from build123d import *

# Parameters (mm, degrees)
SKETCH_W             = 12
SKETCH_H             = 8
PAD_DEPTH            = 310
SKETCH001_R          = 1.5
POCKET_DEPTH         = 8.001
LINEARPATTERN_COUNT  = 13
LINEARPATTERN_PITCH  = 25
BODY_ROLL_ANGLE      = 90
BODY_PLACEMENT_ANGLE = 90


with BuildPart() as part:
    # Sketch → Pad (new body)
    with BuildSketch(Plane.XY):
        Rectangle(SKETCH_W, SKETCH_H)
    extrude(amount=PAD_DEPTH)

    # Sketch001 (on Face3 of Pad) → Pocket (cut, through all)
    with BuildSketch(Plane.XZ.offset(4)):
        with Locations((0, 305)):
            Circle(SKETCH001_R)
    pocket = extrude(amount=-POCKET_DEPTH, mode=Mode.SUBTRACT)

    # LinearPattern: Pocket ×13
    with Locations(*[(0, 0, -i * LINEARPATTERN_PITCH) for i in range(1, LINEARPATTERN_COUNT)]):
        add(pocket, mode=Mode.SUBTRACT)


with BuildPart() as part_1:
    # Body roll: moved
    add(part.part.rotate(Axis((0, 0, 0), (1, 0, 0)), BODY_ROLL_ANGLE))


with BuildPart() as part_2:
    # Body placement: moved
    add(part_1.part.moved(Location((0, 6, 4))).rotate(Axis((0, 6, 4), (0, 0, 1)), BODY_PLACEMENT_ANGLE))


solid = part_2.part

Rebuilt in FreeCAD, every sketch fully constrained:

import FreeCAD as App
import Part
import Sketcher

V = App.Vector
Q = App.Units.Quantity


def add_polygon(sketch, points):
    """Adds a closed chain of lines whose ends are joined by coincident constraints."""
    first, n = sketch.GeometryCount, len(points)
    for a, b in zip(points, points[1:] + points[:1]):
        sketch.addGeometry(Part.LineSegment(App.Vector(*a, 0), App.Vector(*b, 0)), False)
    for i in range(n):
        sketch.addConstraint(Sketcher.Constraint("Coincident", first + i, 2, first + (i + 1) % n, 1))

doc = App.newDocument("Part")
body = doc.addObject("PartDesign::Body", "Body")

sketch1 = body.newObject("Sketcher::SketchObject", "Sketch")
sketch1.AttachmentSupport = (doc.getObject("XY_Plane"), [""])
sketch1.MapMode = "FlatFace"
add_polygon(sketch1, [(-6, 4), (-6, -4), (6, -4), (6, 4)])
sketch1.addConstraint([
    Sketcher.Constraint("Vertical", 0),
    Sketcher.Constraint("Horizontal", 1),
    Sketcher.Constraint("Vertical", 2),
    Sketcher.Constraint("Horizontal", 3),
    Sketcher.Constraint("Symmetric", 0, 2, 2, 2, -1, 1),
    Sketcher.Constraint("DistanceX", 1, 1, 1, 2, Q("12 mm")),
    Sketcher.Constraint("DistanceY", 0, 2, 0, 1, Q("8 mm")),
])
pad1 = body.newObject("PartDesign::Pad", "Pad")
pad1.Profile = sketch1
pad1.Length = 310

sketch2 = body.newObject("Sketcher::SketchObject", "Sketch001")
sketch2.AttachmentSupport = (doc.getObject("XZ_Plane"), [""])
sketch2.MapMode = "FlatFace"
sketch2.AttachmentOffset = App.Placement(V(0, 0, 4), App.Rotation())
sketch2.addGeometry(Part.Circle(V(0, 305, 0), V(0, 0, 1), 1.5), False)
sketch2.addConstraint([
    Sketcher.Constraint("PointOnObject", 0, 3, -2),
    Sketcher.Constraint("Diameter", 0, Q("3 mm")),
    Sketcher.Constraint("DistanceY", -1, 1, 0, 3, Q("305 mm")),
])
pocket1 = body.newObject("PartDesign::Pocket", "Pocket")
pocket1.Profile = sketch2
pocket1.Type = "ThroughAll"
doc.recompute()

linearpattern = body.newObject("PartDesign::LinearPattern", "LinearPattern")
linearpattern.Originals = [pocket1]
linearpattern.Direction = (doc.getObject("Z_Axis"), [""])
linearpattern.Mode = "offset"
linearpattern.Offset = 25
linearpattern.Occurrences = 13
linearpattern.Reversed = True
body.Tip = linearpattern
body2 = doc.addObject("PartDesign::Body", "Body001")
doc.recompute()

body.Placement = App.Placement(V(0, 0, 0), App.Rotation(V(1, 0, 0), 90))
boolean = body2.newObject("PartDesign::Boolean", "Boolean")
boolean.Type = "Fuse"
boolean.addObjects([body])
body3 = doc.addObject("PartDesign::Body", "Body002")
doc.recompute()

body2.Placement = App.Placement(V(0, 6, 4), App.Rotation(V(0, 0, 1), 90))
boolean2 = body3.newObject("PartDesign::Boolean", "Boolean001")
boolean2.Type = "Fuse"
boolean2.addObjects([body2])

doc.recompute()
